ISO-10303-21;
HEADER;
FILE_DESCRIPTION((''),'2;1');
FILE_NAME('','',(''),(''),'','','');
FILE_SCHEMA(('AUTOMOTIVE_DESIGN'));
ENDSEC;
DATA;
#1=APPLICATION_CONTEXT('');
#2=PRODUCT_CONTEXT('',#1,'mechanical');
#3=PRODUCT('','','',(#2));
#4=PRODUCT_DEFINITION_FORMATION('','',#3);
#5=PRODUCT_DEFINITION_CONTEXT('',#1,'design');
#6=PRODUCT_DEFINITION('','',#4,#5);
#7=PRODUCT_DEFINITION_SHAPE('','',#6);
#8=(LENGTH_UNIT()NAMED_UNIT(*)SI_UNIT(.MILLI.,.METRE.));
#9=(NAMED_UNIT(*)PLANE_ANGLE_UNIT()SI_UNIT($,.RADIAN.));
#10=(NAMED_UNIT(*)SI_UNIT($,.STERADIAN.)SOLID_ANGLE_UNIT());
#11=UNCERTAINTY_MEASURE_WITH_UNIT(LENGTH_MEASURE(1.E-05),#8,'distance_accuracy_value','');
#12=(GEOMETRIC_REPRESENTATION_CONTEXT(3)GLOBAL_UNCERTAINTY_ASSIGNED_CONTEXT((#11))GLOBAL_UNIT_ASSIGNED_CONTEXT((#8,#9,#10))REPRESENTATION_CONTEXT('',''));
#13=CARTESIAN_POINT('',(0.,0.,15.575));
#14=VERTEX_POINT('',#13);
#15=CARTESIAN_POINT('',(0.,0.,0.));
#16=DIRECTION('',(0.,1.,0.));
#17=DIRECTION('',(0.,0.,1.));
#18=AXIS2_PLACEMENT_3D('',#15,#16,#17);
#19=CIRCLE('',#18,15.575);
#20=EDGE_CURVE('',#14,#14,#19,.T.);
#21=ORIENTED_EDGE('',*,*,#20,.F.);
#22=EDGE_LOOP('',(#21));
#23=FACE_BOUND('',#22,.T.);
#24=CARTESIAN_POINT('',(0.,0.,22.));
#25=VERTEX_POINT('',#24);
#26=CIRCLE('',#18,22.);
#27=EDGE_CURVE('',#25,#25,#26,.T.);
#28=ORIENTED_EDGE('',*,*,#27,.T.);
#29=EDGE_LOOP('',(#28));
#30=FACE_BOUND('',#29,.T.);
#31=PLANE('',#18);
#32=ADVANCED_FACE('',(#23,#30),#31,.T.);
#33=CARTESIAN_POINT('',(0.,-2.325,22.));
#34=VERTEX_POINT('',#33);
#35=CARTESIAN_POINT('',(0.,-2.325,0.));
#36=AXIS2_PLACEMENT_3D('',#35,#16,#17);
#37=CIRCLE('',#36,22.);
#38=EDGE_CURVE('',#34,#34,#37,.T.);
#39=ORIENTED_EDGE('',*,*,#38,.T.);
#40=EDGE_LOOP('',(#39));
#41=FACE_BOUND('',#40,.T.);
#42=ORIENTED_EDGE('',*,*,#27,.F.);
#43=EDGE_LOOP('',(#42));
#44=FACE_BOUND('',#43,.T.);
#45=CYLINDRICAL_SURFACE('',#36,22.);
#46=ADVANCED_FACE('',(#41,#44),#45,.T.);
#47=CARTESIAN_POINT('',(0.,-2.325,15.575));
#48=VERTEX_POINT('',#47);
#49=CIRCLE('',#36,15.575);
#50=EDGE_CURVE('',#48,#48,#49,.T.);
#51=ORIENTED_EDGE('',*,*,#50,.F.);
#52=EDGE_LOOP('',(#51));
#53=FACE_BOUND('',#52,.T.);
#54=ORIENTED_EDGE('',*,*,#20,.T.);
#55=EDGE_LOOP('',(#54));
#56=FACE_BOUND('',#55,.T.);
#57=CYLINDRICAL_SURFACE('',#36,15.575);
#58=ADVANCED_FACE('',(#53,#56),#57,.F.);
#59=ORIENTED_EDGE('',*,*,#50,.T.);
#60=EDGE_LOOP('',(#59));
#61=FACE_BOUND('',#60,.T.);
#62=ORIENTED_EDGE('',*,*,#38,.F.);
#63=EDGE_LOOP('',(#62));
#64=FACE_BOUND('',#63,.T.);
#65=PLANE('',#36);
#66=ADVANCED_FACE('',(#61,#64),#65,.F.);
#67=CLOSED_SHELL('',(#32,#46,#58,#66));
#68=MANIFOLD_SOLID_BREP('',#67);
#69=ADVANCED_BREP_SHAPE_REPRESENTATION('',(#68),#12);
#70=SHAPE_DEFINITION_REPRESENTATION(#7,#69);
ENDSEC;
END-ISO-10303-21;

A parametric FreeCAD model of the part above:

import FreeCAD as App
import Part
import Sketcher

V = App.Vector

doc = App.newDocument("Part")
params = doc.addObject("Spreadsheet::Sheet", "Params")
for row, (alias, value) in enumerate([
    ("sketch1_diameter", "44 mm"),
    ("sketch1_diameter2", "31.15 mm"),
    ("pad1_length", "2.325 mm"),
], start=1):
    params.set(f"A{row}", alias)
    params.set(f"B{row}", "=" + value)
    params.setAlias(f"B{row}", alias)

body = doc.addObject("PartDesign::Body", "Body")

# Sketch on XZ plane
sketch1 = doc.addObject("Sketcher::SketchObject", "Sketch")
body.addObject(sketch1)
sketch1.AttachmentSupport = (doc.XZ_Plane, [""])
sketch1.MapMode = "FlatFace"
sketch1.addGeometry([
    Part.Circle(V(0, 0, 0), V(0, 0, 1), 22),
    Part.Circle(V(0, 0, 0), V(0, 0, 1), 15.575),
], False)
sketch1.addConstraint([
    Sketcher.Constraint("Coincident", 0, 3, -1, 1),
    Sketcher.Constraint("Coincident", 1, 3, -1, 1),
    Sketcher.Constraint("Diameter", 0, 44.0),
    Sketcher.Constraint("Diameter", 1, 31.15),
])
sketch1.setExpression("Constraints[2]", "Params.sketch1_diameter")
sketch1.setExpression("Constraints[3]", "Params.sketch1_diameter2")
pad1 = doc.addObject("PartDesign::Pad", "Pad")
body.addObject(pad1)
pad1.Profile = sketch1
pad1.setExpression("Length", "Params.pad1_length")

doc.recompute()
